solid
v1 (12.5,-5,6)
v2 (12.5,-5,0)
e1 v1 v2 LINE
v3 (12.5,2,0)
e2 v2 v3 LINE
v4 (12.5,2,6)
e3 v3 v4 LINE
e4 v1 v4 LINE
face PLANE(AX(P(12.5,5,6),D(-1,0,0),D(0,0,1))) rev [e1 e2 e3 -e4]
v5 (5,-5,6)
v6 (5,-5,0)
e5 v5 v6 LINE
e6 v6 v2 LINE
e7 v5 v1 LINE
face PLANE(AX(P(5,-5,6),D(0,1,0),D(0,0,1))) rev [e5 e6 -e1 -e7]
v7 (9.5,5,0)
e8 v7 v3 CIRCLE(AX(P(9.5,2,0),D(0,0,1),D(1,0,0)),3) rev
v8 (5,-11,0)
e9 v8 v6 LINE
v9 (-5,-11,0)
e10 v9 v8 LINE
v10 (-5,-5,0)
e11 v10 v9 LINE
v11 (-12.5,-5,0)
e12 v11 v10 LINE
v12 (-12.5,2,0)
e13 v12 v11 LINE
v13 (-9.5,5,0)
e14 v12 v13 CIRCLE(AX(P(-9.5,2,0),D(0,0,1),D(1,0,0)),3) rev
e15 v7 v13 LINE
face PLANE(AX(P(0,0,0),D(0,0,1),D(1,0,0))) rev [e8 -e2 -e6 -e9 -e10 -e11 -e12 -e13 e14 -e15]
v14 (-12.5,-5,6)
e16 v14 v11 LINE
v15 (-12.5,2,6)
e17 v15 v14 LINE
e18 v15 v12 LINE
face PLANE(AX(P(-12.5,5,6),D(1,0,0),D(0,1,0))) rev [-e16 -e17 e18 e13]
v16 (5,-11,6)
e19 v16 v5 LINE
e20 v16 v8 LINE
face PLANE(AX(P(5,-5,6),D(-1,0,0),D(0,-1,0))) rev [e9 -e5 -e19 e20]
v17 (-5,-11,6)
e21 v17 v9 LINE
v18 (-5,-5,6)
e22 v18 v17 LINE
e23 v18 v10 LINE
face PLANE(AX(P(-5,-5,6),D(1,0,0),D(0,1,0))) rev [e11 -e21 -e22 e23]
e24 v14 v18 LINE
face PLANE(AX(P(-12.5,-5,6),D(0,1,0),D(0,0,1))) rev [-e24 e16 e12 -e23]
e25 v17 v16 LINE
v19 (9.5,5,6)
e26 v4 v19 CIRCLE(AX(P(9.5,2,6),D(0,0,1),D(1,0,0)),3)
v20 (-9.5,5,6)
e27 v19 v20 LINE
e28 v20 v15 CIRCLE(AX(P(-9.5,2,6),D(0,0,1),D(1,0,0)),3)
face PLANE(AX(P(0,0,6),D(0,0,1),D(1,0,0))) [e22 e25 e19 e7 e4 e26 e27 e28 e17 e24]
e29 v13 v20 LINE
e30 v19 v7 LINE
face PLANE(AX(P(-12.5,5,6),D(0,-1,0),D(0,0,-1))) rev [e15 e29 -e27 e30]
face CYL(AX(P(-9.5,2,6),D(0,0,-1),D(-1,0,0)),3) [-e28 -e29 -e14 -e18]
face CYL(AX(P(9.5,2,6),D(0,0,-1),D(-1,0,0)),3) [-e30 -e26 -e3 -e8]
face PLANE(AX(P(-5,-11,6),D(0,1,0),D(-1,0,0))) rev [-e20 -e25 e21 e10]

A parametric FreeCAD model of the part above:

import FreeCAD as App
import Part
import Sketcher

V = App.Vector
Q = App.Units.Quantity


def edges_at(feature, points):
    """Names of the edges that pass closest to the given points."""
    edges = feature.Shape.Edges
    near = lambda p: min(range(len(edges)), key=lambda i: edges[i].distToShape(Part.Vertex(*p))[0])
    return sorted({f"Edge{near(p) + 1}" for p in points})


def add_polygon(sketch, points):
    """Adds a closed chain of lines whose ends are joined by coincident constraints."""
    first, n = sketch.GeometryCount, len(points)
    for a, b in zip(points, points[1:] + points[:1]):
        sketch.addGeometry(Part.LineSegment(App.Vector(*a, 0), App.Vector(*b, 0)), False)
    for i in range(n):
        sketch.addConstraint(Sketcher.Constraint("Coincident", first + i, 2, first + (i + 1) % n, 1))

doc = App.newDocument("Part")
params = doc.addObject("Spreadsheet::Sheet", "Params")
for row, (alias, value) in enumerate([
    ("sketch1_width", "25 mm"),
    ("sketch1_width2", "10 mm"),
    ("sketch1_height", "6 mm"),
    ("pad1_length", "6 mm"),
    ("fillet_radius", "3 mm"),
], start=1):
    params.set(f"A{row}", alias)
    params.set(f"B{row}", "=" + value)
    params.setAlias(f"B{row}", alias)

body = doc.addObject("PartDesign::Body", "Body")

sketch1 = doc.addObject("Sketcher::SketchObject", "Sketch")
body.addObject(sketch1)
sketch1.AttachmentSupport = (doc.XY_Plane, [""])
sketch1.MapMode = "FlatFace"
add_polygon(sketch1, [(5, -5), (12, -5), (12, 5), (-12, 5), (-12, -5), (-5, -5), (-5, -11), (5, -11)])
sketch1.addConstraint(Sketcher.Constraint("Horizontal", 0))
sketch1.addConstraint(Sketcher.Constraint("Vertical", 1))
sketch1.addConstraint(Sketcher.Constraint("Horizontal", 2))
sketch1.addConstraint(Sketcher.Constraint("Vertical", 3))
sketch1.addConstraint(Sketcher.Constraint("Horizontal", 4))
sketch1.addConstraint(Sketcher.Constraint("Vertical", 5))
sketch1.addConstraint(Sketcher.Constraint("Horizontal", 6))
sketch1.addConstraint(Sketcher.Constraint("Vertical", 7))
sketch1.addConstraint(Sketcher.Constraint("Symmetric", 0, 2, 2, 2, -1, 1))
sketch1.addConstraint(Sketcher.Constraint("Symmetric", 4, 2, 7, 2, -2))
sketch1.addConstraint(Sketcher.Constraint("Equal", 6, 1))
sketch1.addConstraint(Sketcher.Constraint("DistanceX", 2, 2, 2, 1, Q("25 mm")))
sketch1.addConstraint(Sketcher.Constraint("DistanceX", 6, 1, 6, 2, Q("10 mm")))
sketch1.addConstraint(Sketcher.Constraint("DistanceY", 5, 2, 5, 1, Q("6 mm")))
sketch1.setExpression("Constraints[19]", "Params.sketch1_width")
sketch1.setExpression("Constraints[20]", "Params.sketch1_width2")
sketch1.setExpression("Constraints[21]", "Params.sketch1_height")
pad1 = doc.addObject("PartDesign::Pad", "Pad")
body.addObject(pad1)
pad1.Profile = sketch1
pad1.setExpression("Length", "Params.pad1_length")
doc.recompute()

fillet = doc.addObject("PartDesign::Fillet", "Fillet")
body.addObject(fillet)
fillet.Base = (pad1, edges_at(pad1, [(-12.5, 5, 3), (12.5, 5, 3)]))
fillet.setExpression("Radius", "Params.fillet_radius")

doc.recompute()
